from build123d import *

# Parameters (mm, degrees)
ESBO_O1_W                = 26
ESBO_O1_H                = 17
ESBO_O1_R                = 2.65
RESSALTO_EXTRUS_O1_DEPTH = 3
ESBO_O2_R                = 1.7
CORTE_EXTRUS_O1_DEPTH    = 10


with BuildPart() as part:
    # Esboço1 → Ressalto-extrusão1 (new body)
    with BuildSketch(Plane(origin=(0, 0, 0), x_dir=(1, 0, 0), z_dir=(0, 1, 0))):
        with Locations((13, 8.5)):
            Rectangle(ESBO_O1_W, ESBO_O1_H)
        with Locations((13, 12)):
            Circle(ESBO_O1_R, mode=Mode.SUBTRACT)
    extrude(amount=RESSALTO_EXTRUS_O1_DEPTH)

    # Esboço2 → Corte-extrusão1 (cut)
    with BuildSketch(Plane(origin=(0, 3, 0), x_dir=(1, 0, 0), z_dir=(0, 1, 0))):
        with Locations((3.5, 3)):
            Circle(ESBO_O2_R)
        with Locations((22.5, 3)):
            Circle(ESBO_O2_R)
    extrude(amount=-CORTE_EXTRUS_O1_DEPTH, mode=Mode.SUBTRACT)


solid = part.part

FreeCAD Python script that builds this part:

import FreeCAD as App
import Part
import Sketcher


def add_polygon(sketch, points):
    """Adds a closed chain of lines whose ends are joined by coincident constraints."""
    first, n = sketch.GeometryCount, len(points)
    for a, b in zip(points, points[1:] + points[:1]):
        sketch.addGeometry(Part.LineSegment(App.Vector(*a, 0), App.Vector(*b, 0)), False)
    for i in range(n):
        sketch.addConstraint(Sketcher.Constraint("Coincident", first + i, 2, first + (i + 1) % n, 1))

doc = App.newDocument("Part")
body = doc.addObject("PartDesign::Body", "Body")

# Sketch on XZ plane
sketch1 = doc.addObject("Sketcher::SketchObject", "Sketch")
body.addObject(sketch1)
sketch1.AttachmentSupport = (doc.XZ_Plane, [""])
sketch1.MapMode = "FlatFace"
add_polygon(sketch1, [(0, -17), (0, 0), (26, 0), (26, -17)])  # lines 0-3
sketch1.addGeometry(Part.Circle(App.Vector(13, -12, 0), App.Vector(0, 0, 1), 2.65), False)  # 4
sketch1.addConstraint([
    Sketcher.Constraint("Vertical", 0),
    Sketcher.Constraint("Horizontal", 1),
    Sketcher.Constraint("Vertical", 2),
    Sketcher.Constraint("Horizontal", 3),
    Sketcher.Constraint("Coincident", 0, 2, -1, 1),
    Sketcher.Constraint("Diameter", 4, 5.3),
    Sketcher.Constraint("DistanceX", 1, 1, 1, 2, 26.0),
    Sketcher.Constraint("DistanceY", 0, 1, 0, 2, 17.0),
    Sketcher.Constraint("DistanceX", -1, 1, 4, 3, 13.0),
    Sketcher.Constraint("DistanceY", 4, 3, -1, 1, 12.0),
])
pad1 = doc.addObject("PartDesign::Pad", "Pad")
body.addObject(pad1)
pad1.Profile = sketch1
pad1.Length = 3
pad1.Reversed = True

# Sketch on XZ plane
sketch2 = doc.addObject("Sketcher::SketchObject", "Sketch001")
body.addObject(sketch2)
sketch2.AttachmentSupport = (doc.XZ_Plane, [""])
sketch2.MapMode = "FlatFace"
sketch2.AttachmentOffset = App.Placement(App.Vector(0, 0, -3), App.Rotation())
sketch2.addGeometry([
    Part.Circle(App.Vector(3.5, -3, 0), App.Vector(0, 0, 1), 1.7),
    Part.Circle(App.Vector(22.5, -3, 0), App.Vector(0, 0, 1), 1.7),
], False)
sketch2.addConstraint([
    Sketcher.Constraint("Equal", 0, 1),
    Sketcher.Constraint("Horizontal", 0, 3, 1, 3),
    Sketcher.Constraint("Diameter", 0, 3.4),
    Sketcher.Constraint("DistanceY", 0, 3, -1, 1, 3.0),
    Sketcher.Constraint("DistanceX", 0, 3, 1, 3, 19.0),
    Sketcher.Constraint("DistanceX", -1, 1, 0, 3, 3.5),
])
pocket1 = doc.addObject("PartDesign::Pocket", "Pocket")
body.addObject(pocket1)
pocket1.Profile = sketch2
pocket1.Length = 10
pocket1.Reversed = True

doc.recompute()
